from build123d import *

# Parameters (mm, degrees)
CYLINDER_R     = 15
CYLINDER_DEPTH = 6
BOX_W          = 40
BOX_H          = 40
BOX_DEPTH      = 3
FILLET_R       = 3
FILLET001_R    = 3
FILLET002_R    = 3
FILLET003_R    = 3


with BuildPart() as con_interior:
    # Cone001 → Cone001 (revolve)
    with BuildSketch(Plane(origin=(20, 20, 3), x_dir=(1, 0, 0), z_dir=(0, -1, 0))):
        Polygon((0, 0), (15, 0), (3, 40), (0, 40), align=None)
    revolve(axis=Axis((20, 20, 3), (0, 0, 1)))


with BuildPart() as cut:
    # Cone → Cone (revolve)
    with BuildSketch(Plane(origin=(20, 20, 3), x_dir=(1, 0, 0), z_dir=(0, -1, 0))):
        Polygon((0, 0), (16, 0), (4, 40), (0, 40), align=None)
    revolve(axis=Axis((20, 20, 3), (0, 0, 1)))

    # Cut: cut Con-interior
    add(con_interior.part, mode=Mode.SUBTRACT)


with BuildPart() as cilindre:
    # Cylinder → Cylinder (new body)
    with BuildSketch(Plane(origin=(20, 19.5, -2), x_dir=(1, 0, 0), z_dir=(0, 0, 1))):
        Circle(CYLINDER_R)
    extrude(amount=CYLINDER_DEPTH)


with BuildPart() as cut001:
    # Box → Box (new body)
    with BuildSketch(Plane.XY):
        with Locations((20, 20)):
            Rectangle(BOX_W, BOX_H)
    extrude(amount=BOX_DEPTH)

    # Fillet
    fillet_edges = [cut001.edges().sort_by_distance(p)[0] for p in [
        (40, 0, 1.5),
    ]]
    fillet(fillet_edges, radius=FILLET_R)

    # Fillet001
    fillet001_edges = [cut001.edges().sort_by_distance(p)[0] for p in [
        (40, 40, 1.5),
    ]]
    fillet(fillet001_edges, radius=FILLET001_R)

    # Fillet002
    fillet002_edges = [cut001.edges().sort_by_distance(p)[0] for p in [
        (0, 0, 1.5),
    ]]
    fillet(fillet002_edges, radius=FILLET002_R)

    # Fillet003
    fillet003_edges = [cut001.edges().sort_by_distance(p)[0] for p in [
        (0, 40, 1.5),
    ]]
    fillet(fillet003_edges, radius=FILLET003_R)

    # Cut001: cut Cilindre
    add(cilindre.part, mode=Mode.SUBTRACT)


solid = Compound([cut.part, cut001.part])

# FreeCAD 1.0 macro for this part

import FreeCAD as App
import Part
import Sketcher

V = App.Vector


def edges_at(feature, points):
    """Names of the edges that pass closest to the given points."""
    edges = feature.Shape.Edges
    near = lambda p: min(range(len(edges)), key=lambda i: edges[i].distToShape(Part.Vertex(*p))[0])
    return sorted({f"Edge{near(p) + 1}" for p in points})


def add_polygon(sketch, points):
    """Adds a closed chain of lines whose ends are joined by coincident constraints."""
    first, n = sketch.GeometryCount, len(points)
    for a, b in zip(points, points[1:] + points[:1]):
        sketch.addGeometry(Part.LineSegment(App.Vector(*a, 0), App.Vector(*b, 0)), False)
    for i in range(n):
        sketch.addConstraint(Sketcher.Constraint("Coincident", first + i, 2, first + (i + 1) % n, 1))

doc = App.newDocument("Part")
body = doc.addObject("PartDesign::Body", "Body")

# Sketch on XZ plane
sketch1 = body.newObject("Sketcher::SketchObject", "Sketch")
sketch1.AttachmentSupport = (doc.getObject("XZ_Plane"), [""])
sketch1.MapMode = "FlatFace"
sketch1.AttachmentOffset = App.Placement(V(0, 0, -20), App.Rotation())
add_polygon(sketch1, [(20, 3), (35, 3), (23, 43), (20, 43)])  # lines 0-3
sketch1.addGeometry(Part.LineSegment(V(20, 3, 0), V(20, 43, 0)), True)  # axis
sketch1.addConstraint([
    Sketcher.Constraint("Horizontal", 0),
    Sketcher.Constraint("Horizontal", 2),
    Sketcher.Constraint("Vertical", 3),
    Sketcher.Constraint("Vertical", 4),
    Sketcher.Constraint("Coincident", 4, 1, 3, 2),
    Sketcher.Constraint("Horizontal", 1, 2, 4, 2),
    Sketcher.Constraint("DistanceX", 0, 1, 0, 2, 15.0),
    Sketcher.Constraint("DistanceX", 2, 2, 2, 1, 3.0),
    Sketcher.Constraint("DistanceY", 3, 2, 3, 1, 40.0),
    Sketcher.Constraint("DistanceX", -1, 1, 0, 2, 35.0),
    Sketcher.Constraint("DistanceY", -1, 1, 0, 2, 3.0),
])
revolution = body.newObject("PartDesign::Revolution", "Revolution")
revolution.Profile = sketch1
revolution.ReferenceAxis = (sketch1, ["Axis0"])
revolution.Angle = 360
body2 = doc.addObject("PartDesign::Body", "Body001")

# Sketch on XZ plane
sketch2 = body2.newObject("Sketcher::SketchObject", "Sketch001")
sketch2.AttachmentSupport = (doc.getObject("XZ_Plane001"), [""])
sketch2.MapMode = "FlatFace"
sketch2.AttachmentOffset = App.Placement(V(0, 0, -20), App.Rotation())
add_polygon(sketch2, [(20, 3), (36, 3), (24, 43), (20, 43)])  # lines 0-3
sketch2.addGeometry(Part.LineSegment(V(20, 3, 0), V(20, 43, 0)), True)  # axis
sketch2.addConstraint([
    Sketcher.Constraint("Horizontal", 0),
    Sketcher.Constraint("Horizontal", 2),
    Sketcher.Constraint("Vertical", 3),
    Sketcher.Constraint("Vertical", 4),
    Sketcher.Constraint("Coincident", 4, 1, 3, 2),
    Sketcher.Constraint("Horizontal", 1, 2, 4, 2),
    Sketcher.Constraint("DistanceX", 0, 1, 0, 2, 16.0),
    Sketcher.Constraint("DistanceX", 2, 2, 2, 1, 4.0),
    Sketcher.Constraint("DistanceY", 3, 2, 3, 1, 40.0),
    Sketcher.Constraint("DistanceX", -1, 1, 0, 2, 36.0),
    Sketcher.Constraint("DistanceY", -1, 1, 0, 2, 3.0),
])
revolution2 = body2.newObject("PartDesign::Revolution", "Revolution001")
revolution2.Profile = sketch2
revolution2.ReferenceAxis = (sketch2, ["Axis0"])
revolution2.Angle = 360
doc.recompute()

boolean = body2.newObject("PartDesign::Boolean", "Boolean")
boolean.Type = "Cut"
boolean.addObjects([body])
body3 = doc.addObject("PartDesign::Body", "Body002")

# Sketch on XY plane
sketch3 = body3.newObject("Sketcher::SketchObject", "Sketch002")
sketch3.AttachmentSupport = (doc.getObject("XY_Plane002"), [""])
sketch3.MapMode = "FlatFace"
sketch3.AttachmentOffset = App.Placement(V(0, 0, -2), App.Rotation())
sketch3.addGeometry(Part.Circle(V(20, 20, 0), V(0, 0, 1), 15), False)
sketch3.addConstraint([
    Sketcher.Constraint("Diameter", 0, 30.0),
    Sketcher.Constraint("DistanceX", -1, 1, 0, 3, 20.0),
    Sketcher.Constraint("DistanceY", -1, 1, 0, 3, 19.5),
])
pad1 = body3.newObject("PartDesign::Pad", "Pad")
pad1.Profile = sketch3
pad1.Length = 6
body4 = doc.addObject("PartDesign::Body", "Body003")

# Sketch on XY plane
sketch4 = body4.newObject("Sketcher::SketchObject", "Sketch003")
sketch4.AttachmentSupport = (doc.getObject("XY_Plane003"), [""])
sketch4.MapMode = "FlatFace"
add_polygon(sketch4, [(0, 40), (0, 0), (40, 0), (40, 40)])  # lines 0-3
sketch4.addConstraint([
    Sketcher.Constraint("Vertical", 0),
    Sketcher.Constraint("Horizontal", 1),
    Sketcher.Constraint("Vertical", 2),
    Sketcher.Constraint("Horizontal", 3),
    Sketcher.Constraint("Coincident", 0, 2, -1, 1),
    Sketcher.Constraint("Equal", 3, 0),
    Sketcher.Constraint("DistanceX", 1, 1, 1, 2, 40.0),
])
pad2 = body4.newObject("PartDesign::Pad", "Pad001")
pad2.Profile = sketch4
pad2.Length = 3
doc.recompute()

fillet = body4.newObject("PartDesign::Fillet", "Fillet")
fillet.Base = (pad2, edges_at(pad2, [(40, 0, 1.5)]))
fillet.Radius = 3
doc.recompute()

fillet2 = body4.newObject("PartDesign::Fillet", "Fillet001")
fillet2.Base = (fillet, edges_at(fillet, [(40, 40, 1.5)]))
fillet2.Radius = 3
doc.recompute()

fillet3 = body4.newObject("PartDesign::Fillet", "Fillet002")
fillet3.Base = (fillet2, edges_at(fillet2, [(0, 0, 1.5)]))
fillet3.Radius = 3
doc.recompute()

fillet4 = body4.newObject("PartDesign::Fillet", "Fillet003")
fillet4.Base = (fillet3, edges_at(fillet3, [(0, 40, 1.5)]))
fillet4.Radius = 3
doc.recompute()

boolean2 = body4.newObject("PartDesign::Boolean", "Boolean001")
boolean2.Type = "Cut"
boolean2.addObjects([body3])

doc.recompute()
